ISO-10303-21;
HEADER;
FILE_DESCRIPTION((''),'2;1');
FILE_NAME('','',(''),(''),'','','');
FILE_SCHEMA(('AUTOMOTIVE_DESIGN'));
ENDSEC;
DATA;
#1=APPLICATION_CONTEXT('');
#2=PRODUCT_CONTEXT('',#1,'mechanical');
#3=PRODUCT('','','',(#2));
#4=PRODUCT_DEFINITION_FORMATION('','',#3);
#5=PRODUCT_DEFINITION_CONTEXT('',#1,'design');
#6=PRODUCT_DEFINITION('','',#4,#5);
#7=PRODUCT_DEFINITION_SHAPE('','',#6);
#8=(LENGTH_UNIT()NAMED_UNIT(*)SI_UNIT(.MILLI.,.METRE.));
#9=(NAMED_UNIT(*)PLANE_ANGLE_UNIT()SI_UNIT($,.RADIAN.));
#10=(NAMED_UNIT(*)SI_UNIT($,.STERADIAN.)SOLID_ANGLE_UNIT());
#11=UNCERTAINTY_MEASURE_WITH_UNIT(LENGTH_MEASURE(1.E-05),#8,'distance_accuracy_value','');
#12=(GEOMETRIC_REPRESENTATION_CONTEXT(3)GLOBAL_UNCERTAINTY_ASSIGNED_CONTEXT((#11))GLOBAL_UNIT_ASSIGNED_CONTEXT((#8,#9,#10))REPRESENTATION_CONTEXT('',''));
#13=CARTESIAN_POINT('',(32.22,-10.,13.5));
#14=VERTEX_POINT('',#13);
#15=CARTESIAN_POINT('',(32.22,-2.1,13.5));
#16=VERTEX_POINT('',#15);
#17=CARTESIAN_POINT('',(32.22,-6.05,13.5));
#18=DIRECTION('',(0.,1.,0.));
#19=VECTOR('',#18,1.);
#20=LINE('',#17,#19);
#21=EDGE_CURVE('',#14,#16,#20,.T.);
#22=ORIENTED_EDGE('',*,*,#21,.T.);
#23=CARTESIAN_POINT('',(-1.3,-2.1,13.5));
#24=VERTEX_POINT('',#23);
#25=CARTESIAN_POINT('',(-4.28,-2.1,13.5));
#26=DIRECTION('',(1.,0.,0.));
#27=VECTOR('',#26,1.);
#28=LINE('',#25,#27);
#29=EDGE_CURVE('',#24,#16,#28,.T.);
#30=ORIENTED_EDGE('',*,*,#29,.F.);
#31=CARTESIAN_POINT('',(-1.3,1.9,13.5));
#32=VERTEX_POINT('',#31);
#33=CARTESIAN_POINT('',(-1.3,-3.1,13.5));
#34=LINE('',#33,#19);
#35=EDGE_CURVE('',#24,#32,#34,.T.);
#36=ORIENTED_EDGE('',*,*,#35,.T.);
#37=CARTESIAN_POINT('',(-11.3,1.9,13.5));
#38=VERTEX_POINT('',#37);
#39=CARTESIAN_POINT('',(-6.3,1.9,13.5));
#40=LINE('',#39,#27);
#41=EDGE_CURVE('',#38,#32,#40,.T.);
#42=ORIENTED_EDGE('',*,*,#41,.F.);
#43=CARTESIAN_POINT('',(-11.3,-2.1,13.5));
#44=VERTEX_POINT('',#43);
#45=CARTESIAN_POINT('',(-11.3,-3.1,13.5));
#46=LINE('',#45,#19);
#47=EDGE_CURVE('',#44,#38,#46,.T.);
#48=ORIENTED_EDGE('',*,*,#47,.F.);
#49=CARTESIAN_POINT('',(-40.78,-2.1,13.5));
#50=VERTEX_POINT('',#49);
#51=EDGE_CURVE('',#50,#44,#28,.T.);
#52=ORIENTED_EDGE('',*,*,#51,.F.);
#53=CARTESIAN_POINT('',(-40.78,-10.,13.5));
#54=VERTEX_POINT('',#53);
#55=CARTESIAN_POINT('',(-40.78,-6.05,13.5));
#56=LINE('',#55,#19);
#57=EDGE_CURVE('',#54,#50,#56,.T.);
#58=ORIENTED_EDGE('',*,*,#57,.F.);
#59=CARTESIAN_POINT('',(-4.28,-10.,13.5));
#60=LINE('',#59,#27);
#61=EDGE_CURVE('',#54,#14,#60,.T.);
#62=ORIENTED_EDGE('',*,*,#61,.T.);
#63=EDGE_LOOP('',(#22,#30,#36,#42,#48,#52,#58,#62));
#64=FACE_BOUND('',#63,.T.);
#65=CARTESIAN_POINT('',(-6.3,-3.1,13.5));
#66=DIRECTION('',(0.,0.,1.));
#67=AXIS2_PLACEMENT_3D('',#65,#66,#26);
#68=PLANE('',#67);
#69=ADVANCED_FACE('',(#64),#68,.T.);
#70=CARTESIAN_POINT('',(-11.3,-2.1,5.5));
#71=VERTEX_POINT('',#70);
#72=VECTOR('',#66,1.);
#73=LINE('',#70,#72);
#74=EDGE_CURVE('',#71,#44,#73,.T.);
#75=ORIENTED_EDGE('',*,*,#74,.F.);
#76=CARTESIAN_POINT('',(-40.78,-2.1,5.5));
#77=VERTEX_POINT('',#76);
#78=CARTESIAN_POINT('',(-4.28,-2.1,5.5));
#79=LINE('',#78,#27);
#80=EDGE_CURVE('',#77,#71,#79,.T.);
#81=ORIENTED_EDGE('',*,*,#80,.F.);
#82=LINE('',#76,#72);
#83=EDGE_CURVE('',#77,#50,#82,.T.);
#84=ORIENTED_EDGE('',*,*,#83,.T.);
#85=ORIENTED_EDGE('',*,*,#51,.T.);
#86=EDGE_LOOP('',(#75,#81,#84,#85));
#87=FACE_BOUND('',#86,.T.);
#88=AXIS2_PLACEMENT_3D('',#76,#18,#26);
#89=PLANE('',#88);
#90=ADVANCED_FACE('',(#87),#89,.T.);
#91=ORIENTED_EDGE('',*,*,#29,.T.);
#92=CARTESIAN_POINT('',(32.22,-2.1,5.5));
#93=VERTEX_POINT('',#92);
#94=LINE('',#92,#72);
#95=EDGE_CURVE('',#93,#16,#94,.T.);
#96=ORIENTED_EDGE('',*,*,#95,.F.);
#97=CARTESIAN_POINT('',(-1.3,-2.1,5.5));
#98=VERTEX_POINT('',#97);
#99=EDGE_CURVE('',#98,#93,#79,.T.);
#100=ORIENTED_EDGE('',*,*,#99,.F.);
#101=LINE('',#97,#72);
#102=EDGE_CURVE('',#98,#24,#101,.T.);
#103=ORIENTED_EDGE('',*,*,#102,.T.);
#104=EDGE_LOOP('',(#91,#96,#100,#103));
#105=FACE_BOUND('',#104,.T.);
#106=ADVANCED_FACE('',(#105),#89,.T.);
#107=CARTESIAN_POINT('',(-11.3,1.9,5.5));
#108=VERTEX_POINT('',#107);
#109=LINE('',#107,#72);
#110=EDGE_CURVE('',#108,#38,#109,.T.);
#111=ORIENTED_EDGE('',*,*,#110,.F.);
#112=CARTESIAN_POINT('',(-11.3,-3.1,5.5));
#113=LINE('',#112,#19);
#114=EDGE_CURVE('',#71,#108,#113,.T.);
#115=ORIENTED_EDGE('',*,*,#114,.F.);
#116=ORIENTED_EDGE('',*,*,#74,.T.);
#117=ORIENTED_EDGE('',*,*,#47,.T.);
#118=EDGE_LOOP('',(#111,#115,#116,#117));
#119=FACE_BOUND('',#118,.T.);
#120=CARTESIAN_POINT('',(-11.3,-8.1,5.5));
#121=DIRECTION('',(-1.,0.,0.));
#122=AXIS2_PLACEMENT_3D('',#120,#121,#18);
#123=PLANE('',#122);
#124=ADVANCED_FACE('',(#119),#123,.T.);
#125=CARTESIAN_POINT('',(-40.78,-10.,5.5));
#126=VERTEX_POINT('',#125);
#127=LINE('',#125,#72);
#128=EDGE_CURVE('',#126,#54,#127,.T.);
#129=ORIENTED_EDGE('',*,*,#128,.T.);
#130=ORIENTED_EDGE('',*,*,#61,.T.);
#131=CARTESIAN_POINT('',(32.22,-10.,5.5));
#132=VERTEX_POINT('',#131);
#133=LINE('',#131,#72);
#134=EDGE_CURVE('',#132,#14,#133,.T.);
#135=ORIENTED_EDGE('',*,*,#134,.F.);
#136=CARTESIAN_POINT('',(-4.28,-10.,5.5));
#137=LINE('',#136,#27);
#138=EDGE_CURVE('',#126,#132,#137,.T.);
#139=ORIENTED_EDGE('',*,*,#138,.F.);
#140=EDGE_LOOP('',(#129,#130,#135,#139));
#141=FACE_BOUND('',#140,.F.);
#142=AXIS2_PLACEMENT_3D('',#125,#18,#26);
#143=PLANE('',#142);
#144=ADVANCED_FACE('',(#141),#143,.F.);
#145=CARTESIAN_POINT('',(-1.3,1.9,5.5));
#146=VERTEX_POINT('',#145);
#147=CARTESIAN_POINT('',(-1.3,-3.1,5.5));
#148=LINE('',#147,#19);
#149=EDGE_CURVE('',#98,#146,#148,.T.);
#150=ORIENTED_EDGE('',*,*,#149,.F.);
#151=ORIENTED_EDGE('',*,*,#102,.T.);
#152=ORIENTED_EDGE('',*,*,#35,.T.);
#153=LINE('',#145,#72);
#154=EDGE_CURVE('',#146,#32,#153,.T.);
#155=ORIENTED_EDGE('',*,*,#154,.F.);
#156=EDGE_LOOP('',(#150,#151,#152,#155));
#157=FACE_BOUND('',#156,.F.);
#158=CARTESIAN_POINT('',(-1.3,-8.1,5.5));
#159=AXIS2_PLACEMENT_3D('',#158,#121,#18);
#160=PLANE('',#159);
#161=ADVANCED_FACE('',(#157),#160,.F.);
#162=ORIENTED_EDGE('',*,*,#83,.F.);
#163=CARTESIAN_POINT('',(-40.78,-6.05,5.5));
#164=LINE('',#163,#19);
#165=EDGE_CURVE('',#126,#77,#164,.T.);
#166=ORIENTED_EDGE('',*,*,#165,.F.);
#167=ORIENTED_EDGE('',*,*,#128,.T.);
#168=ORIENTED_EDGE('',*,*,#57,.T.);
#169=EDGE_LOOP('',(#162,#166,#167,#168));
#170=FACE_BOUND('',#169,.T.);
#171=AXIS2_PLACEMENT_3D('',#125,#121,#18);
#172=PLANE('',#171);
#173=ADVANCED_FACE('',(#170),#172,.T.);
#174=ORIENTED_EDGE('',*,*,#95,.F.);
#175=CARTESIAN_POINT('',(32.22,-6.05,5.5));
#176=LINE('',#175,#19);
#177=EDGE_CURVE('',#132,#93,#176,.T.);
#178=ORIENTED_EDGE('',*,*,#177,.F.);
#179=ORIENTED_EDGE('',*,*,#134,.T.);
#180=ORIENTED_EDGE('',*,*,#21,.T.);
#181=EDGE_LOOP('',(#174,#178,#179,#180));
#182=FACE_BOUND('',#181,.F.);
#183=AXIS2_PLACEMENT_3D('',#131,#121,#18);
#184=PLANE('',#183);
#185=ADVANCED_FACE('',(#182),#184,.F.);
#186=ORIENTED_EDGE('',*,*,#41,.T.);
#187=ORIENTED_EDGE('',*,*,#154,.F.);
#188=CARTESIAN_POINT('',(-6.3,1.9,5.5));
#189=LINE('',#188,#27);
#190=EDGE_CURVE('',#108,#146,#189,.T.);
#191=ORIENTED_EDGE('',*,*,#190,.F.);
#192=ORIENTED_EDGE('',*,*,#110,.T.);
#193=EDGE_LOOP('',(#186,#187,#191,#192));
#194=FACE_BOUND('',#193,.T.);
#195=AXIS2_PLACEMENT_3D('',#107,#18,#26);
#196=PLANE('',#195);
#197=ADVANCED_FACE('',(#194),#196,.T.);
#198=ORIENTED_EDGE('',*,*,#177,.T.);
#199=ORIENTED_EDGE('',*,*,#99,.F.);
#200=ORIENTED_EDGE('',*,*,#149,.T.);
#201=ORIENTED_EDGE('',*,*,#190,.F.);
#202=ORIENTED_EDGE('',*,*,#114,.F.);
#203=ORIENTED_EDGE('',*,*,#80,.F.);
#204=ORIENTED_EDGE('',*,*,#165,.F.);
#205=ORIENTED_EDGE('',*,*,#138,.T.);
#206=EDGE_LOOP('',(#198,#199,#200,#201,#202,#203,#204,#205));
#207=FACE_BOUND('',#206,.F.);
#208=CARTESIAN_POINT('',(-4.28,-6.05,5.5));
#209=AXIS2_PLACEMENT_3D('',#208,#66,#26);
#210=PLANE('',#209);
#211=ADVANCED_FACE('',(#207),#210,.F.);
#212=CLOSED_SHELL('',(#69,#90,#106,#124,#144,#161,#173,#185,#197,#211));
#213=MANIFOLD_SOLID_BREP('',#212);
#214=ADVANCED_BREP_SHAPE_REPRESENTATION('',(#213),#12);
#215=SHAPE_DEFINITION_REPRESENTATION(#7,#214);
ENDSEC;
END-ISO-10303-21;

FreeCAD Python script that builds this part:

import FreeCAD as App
import Part
import Sketcher
Q = App.Units.Quantity

doc = App.newDocument("Part")
body = doc.addObject("PartDesign::Body", "Body")

# Sketch on XY plane
sketch1 = body.newObject("Sketcher::SketchObject", "Sketch")
sketch1.AttachmentSupport = (doc.getObject("XY_Plane"), [""])
sketch1.MapMode = "FlatFace"
sketch1.AttachmentOffset = App.Placement(App.Vector(0, 0, 5.5), App.Rotation())
sketch1.addGeometry([
    Part.LineSegment(App.Vector(-11.3, 1.9, 0), App.Vector(-11.3, -8.1, 0)),
    Part.LineSegment(App.Vector(-11.3, -8.1, 0), App.Vector(-1.3, -8.1, 0)),
    Part.LineSegment(App.Vector(-1.3, -8.1, 0), App.Vector(-1.3, 1.9, 0)),
    Part.LineSegment(App.Vector(-1.3, 1.9, 0), App.Vector(-11.3, 1.9, 0)),
], False)
sketch1.addConstraint([
    Sketcher.Constraint("Coincident", 0, 2, 1, 1),
    Sketcher.Constraint("Coincident", 1, 2, 2, 1),
    Sketcher.Constraint("Coincident", 2, 2, 3, 1),
    Sketcher.Constraint("Coincident", 3, 2, 0, 1),
    Sketcher.Constraint("Vertical", 0),
    Sketcher.Constraint("Horizontal", 1),
    Sketcher.Constraint("Vertical", 2),
    Sketcher.Constraint("Horizontal", 3),
    Sketcher.Constraint("Equal", 3, 0),
    Sketcher.Constraint("DistanceX", 1, 1, 1, 2, Q("10 mm")),
    Sketcher.Constraint("DistanceX", 0, 2, -1, 1, Q("11.3 mm")),
    Sketcher.Constraint("DistanceY", 0, 2, -1, 1, Q("8.1 mm")),
])
pad1 = body.newObject("PartDesign::Pad", "Pad")
pad1.Profile = sketch1
pad1.Length = 8
body2 = doc.addObject("PartDesign::Body", "Body001")

# Sketch on XY plane
sketch2 = body2.newObject("Sketcher::SketchObject", "Sketch001")
sketch2.AttachmentSupport = (doc.getObject("XY_Plane001"), [""])
sketch2.MapMode = "FlatFace"
sketch2.AttachmentOffset = App.Placement(App.Vector(0, 0, 5.5), App.Rotation())
sketch2.addGeometry([
    Part.LineSegment(App.Vector(-40.78, -2.1, 0), App.Vector(-40.78, -10, 0)),
    Part.LineSegment(App.Vector(-40.78, -10, 0), App.Vector(32.22, -10, 0)),
    Part.LineSegment(App.Vector(32.22, -10, 0), App.Vector(32.22, -2.1, 0)),
    Part.LineSegment(App.Vector(32.22, -2.1, 0), App.Vector(-40.78, -2.1, 0)),
], False)
sketch2.addConstraint([
    Sketcher.Constraint("Coincident", 0, 2, 1, 1),
    Sketcher.Constraint("Coincident", 1, 2, 2, 1),
    Sketcher.Constraint("Coincident", 2, 2, 3, 1),
    Sketcher.Constraint("Coincident", 3, 2, 0, 1),
    Sketcher.Constraint("Vertical", 0),
    Sketcher.Constraint("Horizontal", 1),
    Sketcher.Constraint("Vertical", 2),
    Sketcher.Constraint("Horizontal", 3),
    Sketcher.Constraint("DistanceX", 1, 1, 1, 2, Q("73 mm")),
    Sketcher.Constraint("DistanceY", 0, 2, 0, 1, Q("7.9 mm")),
    Sketcher.Constraint("DistanceY", 0, 2, -1, 1, Q("10 mm")),
    Sketcher.Constraint("DistanceX", 0, 2, -1, 1, Q("40.78 mm")),
])
pad2 = body2.newObject("PartDesign::Pad", "Pad001")
pad2.Profile = sketch2
pad2.Length = 8
doc.recompute()

boolean = body2.newObject("PartDesign::Boolean", "Boolean")
boolean.Type = "Fuse"
boolean.addObjects([body])

doc.recompute()
